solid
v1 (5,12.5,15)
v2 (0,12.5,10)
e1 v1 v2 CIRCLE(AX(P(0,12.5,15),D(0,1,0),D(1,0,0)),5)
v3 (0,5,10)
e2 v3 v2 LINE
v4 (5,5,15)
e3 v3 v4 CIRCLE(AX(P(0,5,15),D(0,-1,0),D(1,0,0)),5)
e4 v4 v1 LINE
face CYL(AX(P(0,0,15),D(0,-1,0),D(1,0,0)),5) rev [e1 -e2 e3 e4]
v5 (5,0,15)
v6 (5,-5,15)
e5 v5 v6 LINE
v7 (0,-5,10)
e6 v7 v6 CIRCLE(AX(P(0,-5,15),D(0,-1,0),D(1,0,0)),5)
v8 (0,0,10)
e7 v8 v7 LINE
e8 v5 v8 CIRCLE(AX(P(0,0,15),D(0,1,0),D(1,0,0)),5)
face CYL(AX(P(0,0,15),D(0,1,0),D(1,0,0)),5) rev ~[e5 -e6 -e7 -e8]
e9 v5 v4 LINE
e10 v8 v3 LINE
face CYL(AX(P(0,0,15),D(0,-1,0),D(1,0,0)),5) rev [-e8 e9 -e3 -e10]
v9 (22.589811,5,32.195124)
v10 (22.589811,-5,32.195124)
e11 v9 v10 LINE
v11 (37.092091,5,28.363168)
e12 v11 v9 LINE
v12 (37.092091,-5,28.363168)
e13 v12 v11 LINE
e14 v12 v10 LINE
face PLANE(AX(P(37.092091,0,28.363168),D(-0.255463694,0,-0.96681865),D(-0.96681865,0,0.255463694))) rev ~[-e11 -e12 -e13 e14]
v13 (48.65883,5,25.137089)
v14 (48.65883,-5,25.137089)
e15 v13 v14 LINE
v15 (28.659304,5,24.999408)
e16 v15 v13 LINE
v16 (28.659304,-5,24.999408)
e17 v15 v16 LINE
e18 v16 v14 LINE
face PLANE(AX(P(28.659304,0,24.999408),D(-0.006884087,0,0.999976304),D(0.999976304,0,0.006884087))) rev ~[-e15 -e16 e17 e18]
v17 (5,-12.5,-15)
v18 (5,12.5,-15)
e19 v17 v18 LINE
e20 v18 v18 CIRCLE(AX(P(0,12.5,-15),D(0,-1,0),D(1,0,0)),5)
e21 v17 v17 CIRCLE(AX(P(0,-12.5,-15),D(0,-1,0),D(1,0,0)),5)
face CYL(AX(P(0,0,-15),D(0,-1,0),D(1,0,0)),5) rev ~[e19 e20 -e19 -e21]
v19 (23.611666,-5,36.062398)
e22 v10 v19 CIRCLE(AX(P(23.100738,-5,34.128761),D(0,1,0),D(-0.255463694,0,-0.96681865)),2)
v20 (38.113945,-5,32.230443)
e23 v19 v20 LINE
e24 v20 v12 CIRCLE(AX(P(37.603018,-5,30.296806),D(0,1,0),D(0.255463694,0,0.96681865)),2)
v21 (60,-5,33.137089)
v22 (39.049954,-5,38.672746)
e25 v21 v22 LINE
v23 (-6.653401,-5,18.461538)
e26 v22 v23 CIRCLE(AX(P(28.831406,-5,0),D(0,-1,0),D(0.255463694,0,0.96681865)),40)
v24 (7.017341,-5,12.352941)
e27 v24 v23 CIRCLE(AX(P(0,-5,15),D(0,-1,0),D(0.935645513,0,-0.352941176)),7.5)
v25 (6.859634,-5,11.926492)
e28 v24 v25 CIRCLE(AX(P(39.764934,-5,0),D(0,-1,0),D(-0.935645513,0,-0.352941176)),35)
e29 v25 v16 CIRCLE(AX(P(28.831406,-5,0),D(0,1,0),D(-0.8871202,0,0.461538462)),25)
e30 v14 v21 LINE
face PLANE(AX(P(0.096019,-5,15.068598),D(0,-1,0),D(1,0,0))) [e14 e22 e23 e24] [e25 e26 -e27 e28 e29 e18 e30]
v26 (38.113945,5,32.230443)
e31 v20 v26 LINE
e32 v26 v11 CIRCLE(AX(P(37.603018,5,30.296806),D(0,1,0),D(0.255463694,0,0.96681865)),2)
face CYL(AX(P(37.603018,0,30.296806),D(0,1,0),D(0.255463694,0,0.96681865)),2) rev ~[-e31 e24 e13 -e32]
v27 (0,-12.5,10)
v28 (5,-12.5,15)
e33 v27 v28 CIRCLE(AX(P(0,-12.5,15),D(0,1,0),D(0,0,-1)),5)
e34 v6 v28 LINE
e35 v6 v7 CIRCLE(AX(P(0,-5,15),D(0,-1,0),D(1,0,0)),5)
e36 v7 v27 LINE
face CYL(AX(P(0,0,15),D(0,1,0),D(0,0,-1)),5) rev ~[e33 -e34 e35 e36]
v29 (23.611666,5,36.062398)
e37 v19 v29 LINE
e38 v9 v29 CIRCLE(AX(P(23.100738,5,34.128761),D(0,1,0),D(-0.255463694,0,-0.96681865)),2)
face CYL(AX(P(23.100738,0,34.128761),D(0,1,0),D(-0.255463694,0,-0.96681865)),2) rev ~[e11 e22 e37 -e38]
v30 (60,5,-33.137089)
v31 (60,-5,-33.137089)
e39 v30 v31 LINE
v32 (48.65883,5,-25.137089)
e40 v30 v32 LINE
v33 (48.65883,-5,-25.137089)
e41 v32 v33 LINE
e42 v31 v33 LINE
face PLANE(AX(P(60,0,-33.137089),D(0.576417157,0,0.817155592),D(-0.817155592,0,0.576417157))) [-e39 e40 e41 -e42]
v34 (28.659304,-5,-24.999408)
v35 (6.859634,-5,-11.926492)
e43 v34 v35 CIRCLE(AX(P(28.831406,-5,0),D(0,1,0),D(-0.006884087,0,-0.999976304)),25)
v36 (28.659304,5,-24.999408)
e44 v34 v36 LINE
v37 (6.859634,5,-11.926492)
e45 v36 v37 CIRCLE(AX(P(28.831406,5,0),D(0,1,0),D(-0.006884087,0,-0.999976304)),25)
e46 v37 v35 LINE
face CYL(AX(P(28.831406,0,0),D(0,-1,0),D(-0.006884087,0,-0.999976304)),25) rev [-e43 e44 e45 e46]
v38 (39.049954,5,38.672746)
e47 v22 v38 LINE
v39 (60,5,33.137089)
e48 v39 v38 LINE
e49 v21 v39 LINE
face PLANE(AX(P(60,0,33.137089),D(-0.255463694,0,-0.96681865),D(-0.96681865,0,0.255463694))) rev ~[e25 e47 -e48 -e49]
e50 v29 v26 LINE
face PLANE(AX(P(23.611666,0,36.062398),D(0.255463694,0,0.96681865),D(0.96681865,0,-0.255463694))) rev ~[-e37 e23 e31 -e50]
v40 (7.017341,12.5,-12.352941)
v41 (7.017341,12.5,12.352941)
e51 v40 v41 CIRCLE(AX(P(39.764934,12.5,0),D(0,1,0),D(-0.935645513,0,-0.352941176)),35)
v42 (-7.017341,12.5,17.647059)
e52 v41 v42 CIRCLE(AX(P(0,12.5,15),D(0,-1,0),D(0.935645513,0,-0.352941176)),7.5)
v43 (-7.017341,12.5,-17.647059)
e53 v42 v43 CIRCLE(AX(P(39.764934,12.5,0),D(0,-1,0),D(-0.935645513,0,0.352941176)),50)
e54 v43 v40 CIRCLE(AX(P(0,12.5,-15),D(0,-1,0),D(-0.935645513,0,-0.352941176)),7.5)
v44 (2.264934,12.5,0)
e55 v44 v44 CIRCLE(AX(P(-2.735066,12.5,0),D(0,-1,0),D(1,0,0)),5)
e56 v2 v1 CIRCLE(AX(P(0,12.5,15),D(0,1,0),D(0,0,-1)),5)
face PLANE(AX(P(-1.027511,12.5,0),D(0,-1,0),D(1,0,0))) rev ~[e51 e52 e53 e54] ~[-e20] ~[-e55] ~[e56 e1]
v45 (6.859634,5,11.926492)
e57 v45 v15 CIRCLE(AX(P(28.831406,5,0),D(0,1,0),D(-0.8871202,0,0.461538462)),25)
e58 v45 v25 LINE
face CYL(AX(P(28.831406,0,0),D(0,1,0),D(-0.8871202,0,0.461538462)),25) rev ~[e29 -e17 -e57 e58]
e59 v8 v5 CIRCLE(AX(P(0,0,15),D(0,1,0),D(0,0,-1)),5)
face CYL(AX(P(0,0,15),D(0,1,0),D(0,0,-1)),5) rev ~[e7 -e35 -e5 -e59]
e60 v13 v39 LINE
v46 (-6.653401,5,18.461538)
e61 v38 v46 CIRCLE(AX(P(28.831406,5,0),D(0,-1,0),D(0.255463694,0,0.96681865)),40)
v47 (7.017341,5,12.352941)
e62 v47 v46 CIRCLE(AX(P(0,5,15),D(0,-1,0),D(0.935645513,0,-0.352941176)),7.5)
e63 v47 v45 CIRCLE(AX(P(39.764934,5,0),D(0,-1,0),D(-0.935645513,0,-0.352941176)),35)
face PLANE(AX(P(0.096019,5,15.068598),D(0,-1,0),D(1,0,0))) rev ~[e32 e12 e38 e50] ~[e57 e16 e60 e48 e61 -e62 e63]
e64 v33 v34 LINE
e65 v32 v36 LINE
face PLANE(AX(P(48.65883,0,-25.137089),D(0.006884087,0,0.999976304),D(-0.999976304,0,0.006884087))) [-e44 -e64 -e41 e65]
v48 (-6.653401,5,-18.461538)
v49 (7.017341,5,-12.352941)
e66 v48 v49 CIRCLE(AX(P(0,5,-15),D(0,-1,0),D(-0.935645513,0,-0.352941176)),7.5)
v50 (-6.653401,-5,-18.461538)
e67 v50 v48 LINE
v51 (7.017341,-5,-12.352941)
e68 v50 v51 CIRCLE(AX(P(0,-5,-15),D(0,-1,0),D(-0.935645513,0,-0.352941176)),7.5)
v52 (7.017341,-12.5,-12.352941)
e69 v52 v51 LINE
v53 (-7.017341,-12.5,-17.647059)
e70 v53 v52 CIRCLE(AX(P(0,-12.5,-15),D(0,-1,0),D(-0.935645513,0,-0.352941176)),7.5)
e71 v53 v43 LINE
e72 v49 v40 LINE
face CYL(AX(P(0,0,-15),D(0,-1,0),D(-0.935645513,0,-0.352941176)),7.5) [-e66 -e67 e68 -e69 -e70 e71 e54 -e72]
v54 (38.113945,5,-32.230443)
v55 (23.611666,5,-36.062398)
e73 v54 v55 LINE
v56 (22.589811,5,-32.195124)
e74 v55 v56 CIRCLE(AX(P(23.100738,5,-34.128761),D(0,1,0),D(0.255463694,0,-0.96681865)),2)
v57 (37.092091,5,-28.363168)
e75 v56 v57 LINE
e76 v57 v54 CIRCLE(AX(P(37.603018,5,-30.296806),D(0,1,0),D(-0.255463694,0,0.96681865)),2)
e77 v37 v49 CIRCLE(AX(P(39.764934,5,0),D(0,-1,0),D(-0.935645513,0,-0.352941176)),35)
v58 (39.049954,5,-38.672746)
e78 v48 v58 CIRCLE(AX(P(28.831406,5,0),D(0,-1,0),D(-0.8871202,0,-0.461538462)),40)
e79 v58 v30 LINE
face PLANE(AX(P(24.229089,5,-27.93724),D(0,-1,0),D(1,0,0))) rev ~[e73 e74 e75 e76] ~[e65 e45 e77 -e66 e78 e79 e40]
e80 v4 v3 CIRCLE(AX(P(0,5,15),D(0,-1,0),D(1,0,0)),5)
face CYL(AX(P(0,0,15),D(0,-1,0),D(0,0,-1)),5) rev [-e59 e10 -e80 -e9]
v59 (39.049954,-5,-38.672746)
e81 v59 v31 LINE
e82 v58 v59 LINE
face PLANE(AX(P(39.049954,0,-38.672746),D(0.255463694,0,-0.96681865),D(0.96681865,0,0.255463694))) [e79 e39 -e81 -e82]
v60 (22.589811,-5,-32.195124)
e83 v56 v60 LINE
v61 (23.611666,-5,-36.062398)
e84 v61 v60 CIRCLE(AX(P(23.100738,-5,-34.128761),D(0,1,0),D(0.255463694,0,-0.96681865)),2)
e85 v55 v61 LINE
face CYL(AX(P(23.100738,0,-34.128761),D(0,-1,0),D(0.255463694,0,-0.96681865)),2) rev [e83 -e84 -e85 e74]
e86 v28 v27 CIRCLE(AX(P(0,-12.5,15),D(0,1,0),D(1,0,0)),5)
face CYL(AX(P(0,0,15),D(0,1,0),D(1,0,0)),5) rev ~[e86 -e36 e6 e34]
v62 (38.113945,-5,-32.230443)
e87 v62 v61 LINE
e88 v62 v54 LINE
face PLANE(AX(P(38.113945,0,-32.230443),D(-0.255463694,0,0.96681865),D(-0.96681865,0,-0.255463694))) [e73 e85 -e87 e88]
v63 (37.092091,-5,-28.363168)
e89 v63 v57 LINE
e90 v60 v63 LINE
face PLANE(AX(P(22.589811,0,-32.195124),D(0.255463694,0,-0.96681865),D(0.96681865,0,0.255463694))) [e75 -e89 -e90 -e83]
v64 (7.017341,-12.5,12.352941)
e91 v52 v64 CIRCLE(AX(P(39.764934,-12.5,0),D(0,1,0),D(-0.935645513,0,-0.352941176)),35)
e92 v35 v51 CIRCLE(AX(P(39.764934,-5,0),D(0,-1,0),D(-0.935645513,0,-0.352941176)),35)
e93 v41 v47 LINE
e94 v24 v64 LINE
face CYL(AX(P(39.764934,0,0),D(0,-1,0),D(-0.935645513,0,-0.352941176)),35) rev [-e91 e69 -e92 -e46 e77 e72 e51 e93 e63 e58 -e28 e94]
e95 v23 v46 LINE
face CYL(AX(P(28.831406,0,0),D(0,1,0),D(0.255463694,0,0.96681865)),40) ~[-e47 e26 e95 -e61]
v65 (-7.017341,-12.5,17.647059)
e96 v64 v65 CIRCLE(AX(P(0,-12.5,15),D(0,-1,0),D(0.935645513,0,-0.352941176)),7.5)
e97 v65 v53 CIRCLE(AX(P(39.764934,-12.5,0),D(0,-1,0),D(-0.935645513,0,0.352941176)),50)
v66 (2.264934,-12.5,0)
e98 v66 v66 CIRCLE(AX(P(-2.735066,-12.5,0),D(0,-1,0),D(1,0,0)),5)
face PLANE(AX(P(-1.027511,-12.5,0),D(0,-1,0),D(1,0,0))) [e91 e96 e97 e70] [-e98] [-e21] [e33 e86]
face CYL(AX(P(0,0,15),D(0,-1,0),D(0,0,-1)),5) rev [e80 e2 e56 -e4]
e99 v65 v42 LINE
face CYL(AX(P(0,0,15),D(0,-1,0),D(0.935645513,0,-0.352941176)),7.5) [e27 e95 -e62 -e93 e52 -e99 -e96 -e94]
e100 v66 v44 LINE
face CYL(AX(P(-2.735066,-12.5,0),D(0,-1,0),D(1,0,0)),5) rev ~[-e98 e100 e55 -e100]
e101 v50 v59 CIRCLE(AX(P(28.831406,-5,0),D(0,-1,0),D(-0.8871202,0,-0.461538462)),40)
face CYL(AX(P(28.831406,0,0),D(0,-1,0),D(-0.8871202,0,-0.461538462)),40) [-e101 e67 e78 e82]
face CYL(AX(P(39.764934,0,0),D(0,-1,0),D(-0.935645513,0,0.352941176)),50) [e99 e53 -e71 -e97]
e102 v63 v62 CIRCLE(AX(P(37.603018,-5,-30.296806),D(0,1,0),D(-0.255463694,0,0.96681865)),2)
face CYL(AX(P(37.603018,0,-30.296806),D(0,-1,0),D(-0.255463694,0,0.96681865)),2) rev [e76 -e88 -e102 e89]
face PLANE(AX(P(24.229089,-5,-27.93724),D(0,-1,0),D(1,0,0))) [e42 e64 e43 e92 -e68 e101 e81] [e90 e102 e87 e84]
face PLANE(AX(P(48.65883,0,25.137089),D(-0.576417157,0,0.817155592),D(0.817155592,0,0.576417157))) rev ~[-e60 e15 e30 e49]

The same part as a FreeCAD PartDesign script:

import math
import FreeCAD as App
import Part
import Sketcher

V = App.Vector

doc = App.newDocument("Part")
params = doc.addObject("Spreadsheet::Sheet", "Params")
for row, (alias, value) in enumerate([
    ("sketch1_diameter", "10 mm"),
    ("sketch1_radius", "35 mm"),
    ("sketch1_radius2", "50 mm"),
    ("pad1_length", "25 mm"),
    ("sketch2_diameter", "10 mm"),
    ("sketch2_radius", "25 mm"),
    ("sketch2_radius2", "40 mm"),
    ("sketch2_radius3", "2 mm"),
    ("sketch2_length", "20 mm"),
    ("pad2_length", "10 mm"),
    ("sketch3_diameter", "10 mm"),
], start=1):
    params.set(f"A{row}", alias)
    params.set(f"B{row}", "=" + value)
    params.setAlias(f"B{row}", alias)

body = doc.addObject("PartDesign::Body", "Body")

# Sketch on XZ plane
sketch1 = doc.addObject("Sketcher::SketchObject", "Sketch")
body.addObject(sketch1)
sketch1.AttachmentSupport = (doc.XZ_Plane, [""])
sketch1.MapMode = "FlatFace"
sketch1.addGeometry([
    Part.ArcOfCircle(Part.Circle(V(39.764934, 0, 0), V(0, 0, 1), 35), math.radians(159.332684), math.radians(200.667316)),  # 0
    Part.ArcOfCircle(Part.Circle(V(0, 15, 0), V(0, 0, 1), 7.5), math.radians(-20.667316), math.radians(159.332684)),  # 1
    Part.ArcOfCircle(Part.Circle(V(39.764934, 0, 0), V(0, 0, 1), 50), math.radians(159.332684), math.radians(200.667316)),  # 2
    Part.ArcOfCircle(Part.Circle(V(0, -15, 0), V(0, 0, 1), 7.5), math.radians(-159.332684), math.radians(20.667316)),  # 3
    Part.Circle(V(0, -15, 0), V(0, 0, 1), 5),  # 4
    Part.ArcOfCircle(Part.Circle(V(0, 15, 0), V(0, 0, 1), 5), math.radians(-90), math.radians(0)),  # 5
    Part.ArcOfCircle(Part.Circle(V(0, 15, 0), V(0, 0, 1), 5), math.radians(0), math.radians(270)),  # 6
], False)
sketch1.addConstraint([
    Sketcher.Constraint("Tangent", 0, 1, 1, 1),
    Sketcher.Constraint("Tangent", 1, 2, 2, 1),
    Sketcher.Constraint("Tangent", 2, 2, 3, 1),
    Sketcher.Constraint("Tangent", 3, 2, 0, 2),
    Sketcher.Constraint("Tangent", 5, 1, 6, 2),
    Sketcher.Constraint("Coincident", 6, 1, 5, 2),
    Sketcher.Constraint("Coincident", 2, 3, 0, 3),
    Sketcher.Constraint("Coincident", 4, 3, 3, 3),
    Sketcher.Constraint("Coincident", 5, 3, 1, 3),
    Sketcher.Constraint("Equal", 4, 5),
    Sketcher.Constraint("Symmetric", 1, 3, 3, 3, -1, 1),
    Sketcher.Constraint("PointOnObject", 0, 3, -1),
    Sketcher.Constraint("PointOnObject", 5, 1, -2),
    Sketcher.Constraint("Horizontal", 5, 3, 6, 1),
    Sketcher.Constraint("Diameter", 4, 10.0),
    Sketcher.Constraint("Radius", 0, 35.0),
    Sketcher.Constraint("Radius", 2, 50.0),
    Sketcher.Constraint("DistanceY", -1, 1, 1, 3, 15.0),
])
sketch1.setExpression("Constraints[14]", "Params.sketch1_diameter")
sketch1.setExpression("Constraints[15]", "Params.sketch1_radius")
sketch1.setExpression("Constraints[16]", "Params.sketch1_radius2")
pad1 = doc.addObject("PartDesign::Pad", "Pad")
body.addObject(pad1)
pad1.Profile = sketch1
pad1.setExpression("Length", "Params.pad1_length")
pad1.Midplane = True

# Sketch on XZ plane
sketch2 = doc.addObject("Sketcher::SketchObject", "Sketch001")
body.addObject(sketch2)
sketch2.AttachmentSupport = (doc.XZ_Plane, [""])
sketch2.MapMode = "FlatFace"
sketch2.addGeometry([
    Part.ArcOfCircle(Part.Circle(V(0, 15, 0), V(0, 0, 1), 7.5), math.radians(152.513574), math.radians(332.513574)),  # 0
    Part.ArcOfCircle(Part.Circle(V(28.831406, 0, 0), V(0, 0, 1), 25), math.radians(90.394432), math.radians(152.513574)),  # 1
    Part.LineSegment(V(28.659304, 24.999408, 0), V(48.65883, 25.137089, 0)),  # 2
    Part.LineSegment(V(48.65883, 25.137089, 0), V(60, 33.137089, 0)),  # 3
    Part.LineSegment(V(60, 33.137089, 0), V(39.049954, 38.672746, 0)),  # 4
    Part.ArcOfCircle(Part.Circle(V(28.831406, 0, 0), V(0, 0, 1), 40), math.radians(75.198937), math.radians(152.513574)),  # 5
    Part.Circle(V(0, 15, 0), V(0, 0, 1), 5),  # 6
    Part.LineSegment(V(37.092091, 28.363168, 0), V(22.589811, 32.195124, 0)),  # 7
    Part.ArcOfCircle(Part.Circle(V(23.100738, 34.128761, 0), V(0, 0, 1), 2), math.radians(75.198937), math.radians(255.198937)),  # 8
    Part.LineSegment(V(23.611666, 36.062398, 0), V(38.113945, 32.230443, 0)),  # 9
    Part.ArcOfCircle(Part.Circle(V(37.603018, 30.296806, 0), V(0, 0, 1), 2), math.radians(-104.801063), math.radians(75.198937)),  # 10
    Part.ArcOfCircle(Part.Circle(V(28.831406, 0, 0), V(0, 0, 1), 40), math.radians(-152.513574), math.radians(-75.198937)),  # 11
    Part.LineSegment(V(39.049954, -38.672746, 0), V(60, -33.137089, 0)),  # 12
    Part.LineSegment(V(60, -33.137089, 0), V(48.65883, -25.137089, 0)),  # 13
    Part.LineSegment(V(48.65883, -25.137089, 0), V(28.659304, -24.999408, 0)),  # 14
    Part.ArcOfCircle(Part.Circle(V(28.831406, 0, 0), V(0, 0, 1), 25), math.radians(-152.513574), math.radians(-90.394432)),  # 15
    Part.ArcOfCircle(Part.Circle(V(0, -15, 0), V(0, 0, 1), 7.5), math.radians(27.486426), math.radians(207.486426)),  # 16
    Part.LineSegment(V(38.113945, -32.230443, 0), V(23.611666, -36.062398, 0)),  # 17
    Part.ArcOfCircle(Part.Circle(V(23.100738, -34.128761, 0), V(0, 0, 1), 2), math.radians(104.801063), math.radians(284.801063)),  # 18
    Part.LineSegment(V(22.589811, -32.195124, 0), V(37.092091, -28.363168, 0)),  # 19
    Part.ArcOfCircle(Part.Circle(V(37.603018, -30.296806, 0), V(0, 0, 1), 2), math.radians(-75.198937), math.radians(104.801063)),  # 20
    Part.Circle(V(0, -15, 0), V(0, 0, 1), 5),  # 21
], False)
sketch2.addConstraint([
    Sketcher.Constraint("Tangent", 0, 2, 1, 2),
    Sketcher.Constraint("Tangent", 1, 1, 2, 1),
    Sketcher.Constraint("Coincident", 2, 2, 3, 1),
    Sketcher.Constraint("Coincident", 3, 2, 4, 1),
    Sketcher.Constraint("Tangent", 4, 2, 5, 1),
    Sketcher.Constraint("Tangent", 5, 2, 0, 1),
    Sketcher.Constraint("Tangent", 7, 2, 8, 2),
    Sketcher.Constraint("Tangent", 8, 1, 9, 1),
    Sketcher.Constraint("Tangent", 9, 2, 10, 2),
    Sketcher.Constraint("Tangent", 10, 1, 7, 1),
    Sketcher.Constraint("Tangent", 11, 2, 12, 1),
    Sketcher.Constraint("Coincident", 12, 2, 13, 1),
    Sketcher.Constraint("Coincident", 13, 2, 14, 1),
    Sketcher.Constraint("Tangent", 14, 2, 15, 2),
    Sketcher.Constraint("Tangent", 15, 1, 16, 1),
    Sketcher.Constraint("Tangent", 16, 2, 11, 1),
    Sketcher.Constraint("Tangent", 17, 2, 18, 2),
    Sketcher.Constraint("Tangent", 18, 1, 19, 1),
    Sketcher.Constraint("Tangent", 19, 2, 20, 2),
    Sketcher.Constraint("Tangent", 20, 1, 17, 1),
    Sketcher.Constraint("Coincident", 5, 3, 1, 3),
    Sketcher.Constraint("Coincident", 6, 3, 0, 3),
    Sketcher.Constraint("Coincident", 11, 3, 1, 3),
    Sketcher.Constraint("Coincident", 15, 3, 1, 3),
    Sketcher.Constraint("Coincident", 21, 3, 16, 3),
    Sketcher.Constraint("Equal", 8, 10),
    Sketcher.Constraint("Equal", 5, 11),
    Sketcher.Constraint("Equal", 1, 15),
    Sketcher.Constraint("Equal", 10, 18),
    Sketcher.Constraint("Equal", 18, 20),
    Sketcher.Constraint("Equal", 6, 21),
    Sketcher.Constraint("Symmetric", 0, 3, 16, 3, -1, 1),
    Sketcher.Constraint("Symmetric", 8, 3, 18, 3, -1),
    Sketcher.Constraint("Symmetric", 10, 3, 20, 3, -1),
    Sketcher.Constraint("Symmetric", 4, 2, 11, 2, -1),
    Sketcher.Constraint("Symmetric", 2, 2, 13, 2, -1),
    Sketcher.Constraint("Parallel", 4, 7),
    Sketcher.Constraint("Vertical", 3, 2, 12, 2),
    Sketcher.Constraint("Diameter", 6, 10.0),
    Sketcher.Constraint("Radius", 1, 25.0),
    Sketcher.Constraint("Radius", 5, 40.0),
    Sketcher.Constraint("Radius", 8, 2.0),
    Sketcher.Constraint("Distance", 2, 20.0),
    Sketcher.Constraint("Distance", 7, 15.0),
    Sketcher.Constraint("DistanceY", -1, 1, 0, 3, 15.0),
    Sketcher.Constraint("DistanceX", -1, 1, 3, 2, 60.0),
    Sketcher.Constraint("DistanceY", 2, 2, 3, 2, 8.0),
    Sketcher.Constraint("DistanceY", -1, 1, 8, 1, 36.062398),
    Sketcher.Constraint("DistanceY", 1, 1, 10, 3, 5.297398),
    Sketcher.Constraint("DistanceX", -1, 1, 8, 3, 23.100738),
])
sketch2.setExpression("Constraints[38]", "Params.sketch2_diameter")
sketch2.setExpression("Constraints[39]", "Params.sketch2_radius")
sketch2.setExpression("Constraints[40]", "Params.sketch2_radius2")
sketch2.setExpression("Constraints[41]", "Params.sketch2_radius3")
sketch2.setExpression("Constraints[42]", "Params.sketch2_length")
pad2 = doc.addObject("PartDesign::Pad", "Pad001")
body.addObject(pad2)
pad2.Profile = sketch2
pad2.setExpression("Length", "Params.pad2_length")
pad2.Midplane = True

# Sketch on XZ plane
sketch3 = doc.addObject("Sketcher::SketchObject", "Sketch002")
body.addObject(sketch3)
sketch3.AttachmentSupport = (doc.XZ_Plane, [""])
sketch3.MapMode = "FlatFace"
sketch3.AttachmentOffset = App.Placement(V(0, 0, 12.5), App.Rotation())
sketch3.addGeometry(Part.Circle(V(-2.735066, 0, 0), V(0, 0, 1), 5), False)
sketch3.addConstraint([
    Sketcher.Constraint("PointOnObject", 0, 3, -1),
    Sketcher.Constraint("Diameter", 0, 10.0),
    Sketcher.Constraint("DistanceX", 0, 3, -1, 1, 2.735066),
])
sketch3.setExpression("Constraints[1]", "Params.sketch3_diameter")
pocket1 = doc.addObject("PartDesign::Pocket", "Pocket")
body.addObject(pocket1)
pocket1.Profile = sketch3
pocket1.Type = "ThroughAll"

doc.recompute()
